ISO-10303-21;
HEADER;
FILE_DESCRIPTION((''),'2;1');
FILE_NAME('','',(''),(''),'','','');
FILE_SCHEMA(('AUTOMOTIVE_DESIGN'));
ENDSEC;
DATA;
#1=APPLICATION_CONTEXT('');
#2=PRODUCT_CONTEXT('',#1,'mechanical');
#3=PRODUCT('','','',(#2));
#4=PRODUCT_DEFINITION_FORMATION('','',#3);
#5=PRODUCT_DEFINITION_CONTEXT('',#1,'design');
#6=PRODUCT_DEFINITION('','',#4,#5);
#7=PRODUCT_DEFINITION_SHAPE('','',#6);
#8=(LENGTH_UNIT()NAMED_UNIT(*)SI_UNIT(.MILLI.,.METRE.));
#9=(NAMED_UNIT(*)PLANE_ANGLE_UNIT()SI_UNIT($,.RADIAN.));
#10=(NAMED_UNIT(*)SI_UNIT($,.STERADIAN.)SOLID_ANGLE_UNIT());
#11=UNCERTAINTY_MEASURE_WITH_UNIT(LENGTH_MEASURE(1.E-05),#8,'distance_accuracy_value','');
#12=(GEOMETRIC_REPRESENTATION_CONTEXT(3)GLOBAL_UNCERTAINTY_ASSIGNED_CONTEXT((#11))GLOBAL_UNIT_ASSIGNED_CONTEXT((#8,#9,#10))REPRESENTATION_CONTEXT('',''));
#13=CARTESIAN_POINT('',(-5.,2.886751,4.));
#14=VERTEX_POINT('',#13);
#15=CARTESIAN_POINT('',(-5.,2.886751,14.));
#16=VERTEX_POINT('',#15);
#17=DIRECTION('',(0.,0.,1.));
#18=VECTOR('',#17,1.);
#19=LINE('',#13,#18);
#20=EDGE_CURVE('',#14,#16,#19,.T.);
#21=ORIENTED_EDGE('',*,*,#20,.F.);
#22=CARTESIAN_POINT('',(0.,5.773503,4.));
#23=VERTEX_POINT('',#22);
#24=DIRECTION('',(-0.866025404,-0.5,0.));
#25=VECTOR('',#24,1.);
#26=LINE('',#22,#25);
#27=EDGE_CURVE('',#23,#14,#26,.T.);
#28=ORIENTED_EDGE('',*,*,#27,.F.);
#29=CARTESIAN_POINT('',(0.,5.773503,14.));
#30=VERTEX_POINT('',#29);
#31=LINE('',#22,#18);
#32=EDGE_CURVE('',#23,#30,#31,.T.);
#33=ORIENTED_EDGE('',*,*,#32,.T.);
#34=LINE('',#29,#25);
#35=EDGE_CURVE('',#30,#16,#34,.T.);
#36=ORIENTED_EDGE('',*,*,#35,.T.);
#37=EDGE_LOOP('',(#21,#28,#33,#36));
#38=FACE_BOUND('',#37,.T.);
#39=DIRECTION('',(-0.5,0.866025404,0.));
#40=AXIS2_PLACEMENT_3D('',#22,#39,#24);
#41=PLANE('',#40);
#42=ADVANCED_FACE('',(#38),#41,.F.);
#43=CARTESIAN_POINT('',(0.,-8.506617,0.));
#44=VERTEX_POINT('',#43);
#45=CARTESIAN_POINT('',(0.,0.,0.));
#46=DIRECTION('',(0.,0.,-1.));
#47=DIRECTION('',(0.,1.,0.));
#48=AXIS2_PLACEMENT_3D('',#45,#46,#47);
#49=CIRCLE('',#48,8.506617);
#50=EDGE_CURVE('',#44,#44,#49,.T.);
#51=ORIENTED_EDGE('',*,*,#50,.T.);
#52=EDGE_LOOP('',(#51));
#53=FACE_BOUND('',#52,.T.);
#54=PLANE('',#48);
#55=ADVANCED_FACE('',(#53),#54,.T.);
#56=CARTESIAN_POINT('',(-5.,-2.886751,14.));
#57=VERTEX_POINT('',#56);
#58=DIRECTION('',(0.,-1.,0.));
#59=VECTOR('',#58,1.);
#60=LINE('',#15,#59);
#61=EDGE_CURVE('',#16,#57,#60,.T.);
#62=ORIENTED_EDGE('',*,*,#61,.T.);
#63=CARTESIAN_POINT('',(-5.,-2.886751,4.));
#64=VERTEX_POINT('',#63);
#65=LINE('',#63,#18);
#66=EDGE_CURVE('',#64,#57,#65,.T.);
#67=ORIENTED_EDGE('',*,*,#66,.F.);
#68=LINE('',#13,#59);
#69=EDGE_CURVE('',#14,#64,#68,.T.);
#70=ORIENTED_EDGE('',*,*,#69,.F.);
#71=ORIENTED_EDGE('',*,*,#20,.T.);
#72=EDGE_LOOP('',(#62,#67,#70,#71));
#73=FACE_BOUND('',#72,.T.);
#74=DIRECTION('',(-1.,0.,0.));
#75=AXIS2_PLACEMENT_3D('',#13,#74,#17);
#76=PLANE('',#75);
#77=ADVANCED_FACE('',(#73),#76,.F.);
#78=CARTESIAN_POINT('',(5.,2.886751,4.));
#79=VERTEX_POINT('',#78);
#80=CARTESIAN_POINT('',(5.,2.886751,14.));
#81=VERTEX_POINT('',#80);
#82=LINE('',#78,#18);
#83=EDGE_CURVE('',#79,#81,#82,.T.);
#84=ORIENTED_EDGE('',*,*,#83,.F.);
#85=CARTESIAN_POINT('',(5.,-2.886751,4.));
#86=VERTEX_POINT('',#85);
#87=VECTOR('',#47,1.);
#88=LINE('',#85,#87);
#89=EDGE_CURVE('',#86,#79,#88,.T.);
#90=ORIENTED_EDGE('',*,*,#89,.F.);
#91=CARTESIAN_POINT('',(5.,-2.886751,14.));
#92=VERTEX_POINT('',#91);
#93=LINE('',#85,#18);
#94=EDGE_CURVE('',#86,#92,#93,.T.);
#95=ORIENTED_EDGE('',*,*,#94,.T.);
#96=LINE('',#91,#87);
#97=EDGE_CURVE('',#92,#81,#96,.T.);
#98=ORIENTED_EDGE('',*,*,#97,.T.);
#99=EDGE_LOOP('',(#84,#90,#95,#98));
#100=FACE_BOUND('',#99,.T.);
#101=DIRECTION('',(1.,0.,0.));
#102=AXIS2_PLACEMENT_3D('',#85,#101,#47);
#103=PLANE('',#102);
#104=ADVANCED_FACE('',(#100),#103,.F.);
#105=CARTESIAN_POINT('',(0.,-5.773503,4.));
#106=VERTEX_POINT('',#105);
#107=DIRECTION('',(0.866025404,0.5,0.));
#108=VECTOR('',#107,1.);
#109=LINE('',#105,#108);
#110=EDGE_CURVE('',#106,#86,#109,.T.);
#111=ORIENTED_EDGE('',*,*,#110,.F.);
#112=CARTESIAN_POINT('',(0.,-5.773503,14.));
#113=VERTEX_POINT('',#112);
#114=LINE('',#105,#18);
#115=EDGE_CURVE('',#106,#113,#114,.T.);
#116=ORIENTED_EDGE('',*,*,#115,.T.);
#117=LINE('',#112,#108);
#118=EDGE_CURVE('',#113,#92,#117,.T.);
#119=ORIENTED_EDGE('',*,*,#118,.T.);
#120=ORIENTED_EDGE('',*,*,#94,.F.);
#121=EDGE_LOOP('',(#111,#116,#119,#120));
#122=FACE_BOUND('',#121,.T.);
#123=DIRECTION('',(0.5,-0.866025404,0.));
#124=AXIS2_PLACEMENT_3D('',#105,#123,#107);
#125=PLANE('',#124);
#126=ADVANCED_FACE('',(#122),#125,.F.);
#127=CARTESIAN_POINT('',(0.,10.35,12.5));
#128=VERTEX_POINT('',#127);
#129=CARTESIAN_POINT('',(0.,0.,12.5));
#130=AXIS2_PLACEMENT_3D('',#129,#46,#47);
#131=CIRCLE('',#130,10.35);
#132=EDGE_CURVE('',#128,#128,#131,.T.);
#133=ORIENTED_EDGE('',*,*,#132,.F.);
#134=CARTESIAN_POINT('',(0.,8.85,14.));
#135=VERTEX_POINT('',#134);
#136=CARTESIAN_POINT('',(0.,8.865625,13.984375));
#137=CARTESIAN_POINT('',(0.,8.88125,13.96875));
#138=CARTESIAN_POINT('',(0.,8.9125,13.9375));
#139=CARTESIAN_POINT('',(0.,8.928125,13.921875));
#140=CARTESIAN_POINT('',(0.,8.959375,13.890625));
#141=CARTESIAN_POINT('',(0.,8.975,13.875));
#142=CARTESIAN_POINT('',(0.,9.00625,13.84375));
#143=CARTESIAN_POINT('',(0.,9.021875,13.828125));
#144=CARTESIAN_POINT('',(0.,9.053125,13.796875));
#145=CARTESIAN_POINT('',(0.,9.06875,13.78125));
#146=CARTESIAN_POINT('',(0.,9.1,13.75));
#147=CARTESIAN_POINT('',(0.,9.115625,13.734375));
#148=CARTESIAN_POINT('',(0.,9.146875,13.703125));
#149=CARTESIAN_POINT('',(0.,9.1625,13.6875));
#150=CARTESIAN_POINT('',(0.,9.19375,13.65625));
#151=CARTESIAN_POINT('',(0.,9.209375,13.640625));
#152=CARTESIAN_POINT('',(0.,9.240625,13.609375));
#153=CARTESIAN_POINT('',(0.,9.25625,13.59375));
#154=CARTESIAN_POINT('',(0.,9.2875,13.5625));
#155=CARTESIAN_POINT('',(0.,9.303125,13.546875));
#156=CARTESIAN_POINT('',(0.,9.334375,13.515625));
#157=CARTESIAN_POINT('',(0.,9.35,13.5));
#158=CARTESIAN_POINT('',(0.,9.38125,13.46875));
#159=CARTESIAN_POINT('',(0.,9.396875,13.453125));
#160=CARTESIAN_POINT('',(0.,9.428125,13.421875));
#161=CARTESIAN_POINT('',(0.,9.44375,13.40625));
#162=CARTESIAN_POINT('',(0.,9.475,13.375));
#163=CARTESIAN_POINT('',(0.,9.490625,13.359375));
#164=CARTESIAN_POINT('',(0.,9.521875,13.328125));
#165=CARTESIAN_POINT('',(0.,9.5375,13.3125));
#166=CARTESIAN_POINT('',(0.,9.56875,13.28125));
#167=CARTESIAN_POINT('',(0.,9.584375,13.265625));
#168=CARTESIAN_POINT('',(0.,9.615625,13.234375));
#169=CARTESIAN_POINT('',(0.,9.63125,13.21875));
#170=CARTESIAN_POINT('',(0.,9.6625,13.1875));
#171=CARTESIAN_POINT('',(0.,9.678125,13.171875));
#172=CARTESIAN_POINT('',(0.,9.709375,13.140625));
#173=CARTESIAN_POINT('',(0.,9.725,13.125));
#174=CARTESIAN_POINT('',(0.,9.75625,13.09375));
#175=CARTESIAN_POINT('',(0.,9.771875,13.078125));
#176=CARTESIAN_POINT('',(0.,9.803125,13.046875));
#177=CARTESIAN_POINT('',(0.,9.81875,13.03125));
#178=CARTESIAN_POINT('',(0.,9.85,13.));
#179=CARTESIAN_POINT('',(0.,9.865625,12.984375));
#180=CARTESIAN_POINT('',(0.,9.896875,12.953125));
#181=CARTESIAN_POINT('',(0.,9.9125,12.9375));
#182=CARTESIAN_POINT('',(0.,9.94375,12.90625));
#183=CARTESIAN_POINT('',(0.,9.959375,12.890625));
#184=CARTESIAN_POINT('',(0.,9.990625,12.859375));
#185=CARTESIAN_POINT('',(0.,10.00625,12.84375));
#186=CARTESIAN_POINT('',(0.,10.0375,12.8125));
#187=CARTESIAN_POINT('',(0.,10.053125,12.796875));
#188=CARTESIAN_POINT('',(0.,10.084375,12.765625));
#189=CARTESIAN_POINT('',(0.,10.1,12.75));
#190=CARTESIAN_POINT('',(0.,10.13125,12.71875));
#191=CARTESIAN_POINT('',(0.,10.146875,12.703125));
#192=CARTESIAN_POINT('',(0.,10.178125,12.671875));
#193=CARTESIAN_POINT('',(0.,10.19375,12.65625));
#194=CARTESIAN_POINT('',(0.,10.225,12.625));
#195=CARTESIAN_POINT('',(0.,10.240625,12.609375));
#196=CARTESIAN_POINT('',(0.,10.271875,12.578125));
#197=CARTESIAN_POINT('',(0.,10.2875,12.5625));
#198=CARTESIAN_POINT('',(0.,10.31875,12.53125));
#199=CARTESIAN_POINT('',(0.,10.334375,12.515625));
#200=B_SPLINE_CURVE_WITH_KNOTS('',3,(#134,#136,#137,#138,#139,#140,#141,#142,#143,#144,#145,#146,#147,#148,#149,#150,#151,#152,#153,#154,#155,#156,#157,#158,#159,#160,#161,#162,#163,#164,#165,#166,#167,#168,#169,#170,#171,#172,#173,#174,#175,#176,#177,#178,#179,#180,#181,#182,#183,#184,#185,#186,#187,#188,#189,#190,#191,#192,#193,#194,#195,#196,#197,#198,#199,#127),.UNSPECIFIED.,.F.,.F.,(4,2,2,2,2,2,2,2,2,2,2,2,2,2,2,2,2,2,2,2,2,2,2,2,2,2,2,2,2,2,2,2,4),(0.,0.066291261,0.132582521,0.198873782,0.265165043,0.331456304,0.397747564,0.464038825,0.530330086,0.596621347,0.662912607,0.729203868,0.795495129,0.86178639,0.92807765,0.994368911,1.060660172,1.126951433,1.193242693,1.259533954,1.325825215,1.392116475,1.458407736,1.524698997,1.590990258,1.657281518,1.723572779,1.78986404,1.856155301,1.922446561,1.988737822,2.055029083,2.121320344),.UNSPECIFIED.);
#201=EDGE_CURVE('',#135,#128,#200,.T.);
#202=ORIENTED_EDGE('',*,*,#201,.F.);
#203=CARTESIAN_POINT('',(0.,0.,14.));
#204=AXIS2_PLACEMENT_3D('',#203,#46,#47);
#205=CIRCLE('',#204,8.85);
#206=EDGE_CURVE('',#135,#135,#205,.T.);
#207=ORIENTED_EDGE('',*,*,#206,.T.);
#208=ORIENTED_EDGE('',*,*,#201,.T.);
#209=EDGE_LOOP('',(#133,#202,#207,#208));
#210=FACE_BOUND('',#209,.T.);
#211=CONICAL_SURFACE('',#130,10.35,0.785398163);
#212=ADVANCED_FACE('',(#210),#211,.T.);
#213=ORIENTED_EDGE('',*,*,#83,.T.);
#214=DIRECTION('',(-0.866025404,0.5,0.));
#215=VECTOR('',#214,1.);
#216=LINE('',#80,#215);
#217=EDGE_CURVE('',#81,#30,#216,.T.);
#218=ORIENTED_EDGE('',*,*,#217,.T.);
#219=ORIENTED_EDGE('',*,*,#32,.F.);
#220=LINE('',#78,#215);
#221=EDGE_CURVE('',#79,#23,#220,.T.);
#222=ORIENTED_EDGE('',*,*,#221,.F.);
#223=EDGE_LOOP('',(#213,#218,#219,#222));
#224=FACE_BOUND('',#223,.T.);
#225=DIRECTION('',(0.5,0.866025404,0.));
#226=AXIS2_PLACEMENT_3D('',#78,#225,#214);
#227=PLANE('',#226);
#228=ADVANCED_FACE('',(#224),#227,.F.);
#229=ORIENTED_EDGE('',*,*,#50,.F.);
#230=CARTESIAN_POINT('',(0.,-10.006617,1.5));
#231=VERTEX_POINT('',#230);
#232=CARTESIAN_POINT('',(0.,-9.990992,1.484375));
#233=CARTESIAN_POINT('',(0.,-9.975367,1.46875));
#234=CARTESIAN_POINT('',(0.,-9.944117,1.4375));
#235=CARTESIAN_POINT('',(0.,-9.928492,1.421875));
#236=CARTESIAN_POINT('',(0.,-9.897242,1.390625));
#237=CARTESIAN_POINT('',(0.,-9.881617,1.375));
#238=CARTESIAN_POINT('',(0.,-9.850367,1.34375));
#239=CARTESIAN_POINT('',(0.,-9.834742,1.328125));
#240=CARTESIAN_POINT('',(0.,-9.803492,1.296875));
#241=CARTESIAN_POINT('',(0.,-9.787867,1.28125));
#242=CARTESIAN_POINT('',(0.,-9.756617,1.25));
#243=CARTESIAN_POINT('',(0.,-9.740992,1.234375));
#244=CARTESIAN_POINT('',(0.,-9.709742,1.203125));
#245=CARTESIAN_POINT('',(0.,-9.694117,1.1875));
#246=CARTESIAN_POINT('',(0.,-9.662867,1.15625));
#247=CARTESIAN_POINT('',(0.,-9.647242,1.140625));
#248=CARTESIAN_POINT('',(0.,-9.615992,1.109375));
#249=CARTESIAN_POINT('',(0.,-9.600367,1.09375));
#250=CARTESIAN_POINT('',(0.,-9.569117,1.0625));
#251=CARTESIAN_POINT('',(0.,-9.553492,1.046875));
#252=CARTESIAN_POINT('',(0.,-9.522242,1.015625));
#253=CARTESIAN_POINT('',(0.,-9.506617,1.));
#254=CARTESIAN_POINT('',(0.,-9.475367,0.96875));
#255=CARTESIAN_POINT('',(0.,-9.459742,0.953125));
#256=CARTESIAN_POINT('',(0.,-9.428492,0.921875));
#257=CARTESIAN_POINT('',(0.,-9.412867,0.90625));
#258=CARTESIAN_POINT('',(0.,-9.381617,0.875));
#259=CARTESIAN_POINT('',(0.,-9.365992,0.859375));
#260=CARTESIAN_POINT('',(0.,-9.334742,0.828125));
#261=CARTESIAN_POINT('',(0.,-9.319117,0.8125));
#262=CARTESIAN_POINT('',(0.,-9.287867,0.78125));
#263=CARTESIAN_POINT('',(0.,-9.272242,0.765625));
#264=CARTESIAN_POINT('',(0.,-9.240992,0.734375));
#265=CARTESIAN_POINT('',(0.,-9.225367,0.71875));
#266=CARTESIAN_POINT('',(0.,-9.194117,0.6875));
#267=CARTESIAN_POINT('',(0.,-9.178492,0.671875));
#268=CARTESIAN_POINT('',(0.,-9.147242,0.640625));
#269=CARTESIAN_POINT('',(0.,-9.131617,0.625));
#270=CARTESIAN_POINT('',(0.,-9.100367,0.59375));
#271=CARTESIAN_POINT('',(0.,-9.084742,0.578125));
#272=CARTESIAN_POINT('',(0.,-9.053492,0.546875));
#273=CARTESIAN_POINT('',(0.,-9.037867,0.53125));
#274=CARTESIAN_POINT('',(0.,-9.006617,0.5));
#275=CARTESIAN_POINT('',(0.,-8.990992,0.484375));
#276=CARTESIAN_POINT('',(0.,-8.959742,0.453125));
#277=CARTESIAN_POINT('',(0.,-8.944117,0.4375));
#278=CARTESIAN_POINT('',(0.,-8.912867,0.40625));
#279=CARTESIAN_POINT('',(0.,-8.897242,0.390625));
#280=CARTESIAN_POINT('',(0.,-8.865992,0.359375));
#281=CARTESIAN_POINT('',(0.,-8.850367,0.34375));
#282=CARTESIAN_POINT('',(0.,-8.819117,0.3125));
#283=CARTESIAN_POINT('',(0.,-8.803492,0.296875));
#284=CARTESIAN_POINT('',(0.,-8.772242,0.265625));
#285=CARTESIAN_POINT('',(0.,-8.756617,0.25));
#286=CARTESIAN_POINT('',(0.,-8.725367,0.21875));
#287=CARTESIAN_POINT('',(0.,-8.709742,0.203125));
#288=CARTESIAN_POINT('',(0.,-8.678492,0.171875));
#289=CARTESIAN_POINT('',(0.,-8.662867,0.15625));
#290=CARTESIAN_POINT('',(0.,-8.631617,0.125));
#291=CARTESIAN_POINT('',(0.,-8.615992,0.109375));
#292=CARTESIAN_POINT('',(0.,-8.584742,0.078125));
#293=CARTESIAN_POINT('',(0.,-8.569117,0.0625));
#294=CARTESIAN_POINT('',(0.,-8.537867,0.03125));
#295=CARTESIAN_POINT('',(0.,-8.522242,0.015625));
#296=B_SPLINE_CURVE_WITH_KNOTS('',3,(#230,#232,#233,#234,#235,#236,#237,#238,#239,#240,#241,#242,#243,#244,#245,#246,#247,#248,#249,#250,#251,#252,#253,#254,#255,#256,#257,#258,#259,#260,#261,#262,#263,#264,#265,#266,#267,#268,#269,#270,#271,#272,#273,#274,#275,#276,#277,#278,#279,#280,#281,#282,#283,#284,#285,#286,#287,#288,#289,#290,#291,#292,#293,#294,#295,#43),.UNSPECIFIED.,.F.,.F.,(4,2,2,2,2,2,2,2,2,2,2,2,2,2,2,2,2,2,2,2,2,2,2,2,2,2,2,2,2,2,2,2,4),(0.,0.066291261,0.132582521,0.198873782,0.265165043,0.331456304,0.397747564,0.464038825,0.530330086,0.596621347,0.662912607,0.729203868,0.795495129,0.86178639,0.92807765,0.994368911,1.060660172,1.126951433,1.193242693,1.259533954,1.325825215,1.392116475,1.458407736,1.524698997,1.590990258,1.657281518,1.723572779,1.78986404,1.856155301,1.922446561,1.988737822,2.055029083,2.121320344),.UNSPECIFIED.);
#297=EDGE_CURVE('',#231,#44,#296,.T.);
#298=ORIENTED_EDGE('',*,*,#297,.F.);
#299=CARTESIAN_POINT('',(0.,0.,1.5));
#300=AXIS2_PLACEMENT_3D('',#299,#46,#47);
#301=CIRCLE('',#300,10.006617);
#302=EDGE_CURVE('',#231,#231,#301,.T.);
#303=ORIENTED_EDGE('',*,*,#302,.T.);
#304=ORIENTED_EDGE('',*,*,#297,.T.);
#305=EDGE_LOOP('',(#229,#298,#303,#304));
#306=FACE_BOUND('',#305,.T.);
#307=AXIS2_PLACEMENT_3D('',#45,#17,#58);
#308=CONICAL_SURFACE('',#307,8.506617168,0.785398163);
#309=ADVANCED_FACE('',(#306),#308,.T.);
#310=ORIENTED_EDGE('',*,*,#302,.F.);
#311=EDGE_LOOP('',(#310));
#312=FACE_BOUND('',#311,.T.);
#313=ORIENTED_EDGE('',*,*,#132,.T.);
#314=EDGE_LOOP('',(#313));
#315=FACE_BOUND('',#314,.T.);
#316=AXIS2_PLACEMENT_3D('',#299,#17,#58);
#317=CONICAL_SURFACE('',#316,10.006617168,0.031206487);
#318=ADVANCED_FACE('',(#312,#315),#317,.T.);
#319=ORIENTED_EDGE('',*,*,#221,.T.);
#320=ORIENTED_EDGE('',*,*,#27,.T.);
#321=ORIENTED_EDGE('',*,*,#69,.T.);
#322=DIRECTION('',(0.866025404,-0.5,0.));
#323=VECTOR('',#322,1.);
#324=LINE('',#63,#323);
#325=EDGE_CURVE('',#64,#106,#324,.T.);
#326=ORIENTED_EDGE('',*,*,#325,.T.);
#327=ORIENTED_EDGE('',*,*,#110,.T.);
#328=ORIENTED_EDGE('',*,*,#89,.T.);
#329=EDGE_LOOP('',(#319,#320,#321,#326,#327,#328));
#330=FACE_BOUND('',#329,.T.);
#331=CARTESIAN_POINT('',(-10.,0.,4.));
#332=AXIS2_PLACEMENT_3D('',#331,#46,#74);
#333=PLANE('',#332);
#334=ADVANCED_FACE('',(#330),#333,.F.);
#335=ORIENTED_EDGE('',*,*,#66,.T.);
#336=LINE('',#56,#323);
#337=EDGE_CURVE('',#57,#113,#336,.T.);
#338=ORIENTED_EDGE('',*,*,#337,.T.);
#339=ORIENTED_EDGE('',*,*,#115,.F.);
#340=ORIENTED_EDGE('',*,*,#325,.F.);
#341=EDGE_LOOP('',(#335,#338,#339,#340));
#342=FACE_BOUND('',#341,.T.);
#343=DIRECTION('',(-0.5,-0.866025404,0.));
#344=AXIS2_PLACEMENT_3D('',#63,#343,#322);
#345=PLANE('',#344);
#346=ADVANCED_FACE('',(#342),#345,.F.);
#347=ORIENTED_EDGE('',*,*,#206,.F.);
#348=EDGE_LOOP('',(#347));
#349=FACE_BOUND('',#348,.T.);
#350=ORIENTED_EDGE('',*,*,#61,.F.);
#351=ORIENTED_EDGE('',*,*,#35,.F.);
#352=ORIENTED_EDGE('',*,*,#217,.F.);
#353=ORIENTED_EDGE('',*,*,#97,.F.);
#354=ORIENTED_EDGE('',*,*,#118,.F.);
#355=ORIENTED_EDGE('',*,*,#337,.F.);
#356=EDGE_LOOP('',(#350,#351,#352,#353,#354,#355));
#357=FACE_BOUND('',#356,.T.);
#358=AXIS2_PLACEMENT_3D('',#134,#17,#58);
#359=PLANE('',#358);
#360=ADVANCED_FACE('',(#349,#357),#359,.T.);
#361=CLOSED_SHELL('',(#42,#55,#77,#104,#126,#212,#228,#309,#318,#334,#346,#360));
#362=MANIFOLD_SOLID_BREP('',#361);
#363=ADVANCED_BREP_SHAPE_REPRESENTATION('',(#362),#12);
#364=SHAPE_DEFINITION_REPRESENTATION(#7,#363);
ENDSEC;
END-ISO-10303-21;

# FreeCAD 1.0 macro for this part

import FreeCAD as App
import Part
import Sketcher
from FreeCAD import Vector
Q = App.Units.Quantity


def add_polygon(sketch, points):
    """Adds a closed chain of lines whose ends are joined by coincident constraints."""
    first, n = sketch.GeometryCount, len(points)
    for a, b in zip(points, points[1:] + points[:1]):
        sketch.addGeometry(Part.LineSegment(App.Vector(*a, 0), App.Vector(*b, 0)), False)
    for i in range(n):
        sketch.addConstraint(Sketcher.Constraint("Coincident", first + i, 2, first + (i + 1) % n, 1))

doc = App.newDocument("Part")
body = doc.addObject("PartDesign::Body", "Body")

sketch1 = body.newObject("Sketcher::SketchObject", "Sketch")
sketch1.AttachmentSupport = (doc.getObject("YZ_Plane"), [""])
sketch1.MapMode = "FlatFace"
add_polygon(sketch1, [(0, 0), (8.5, 0), (10, 1.5), (10.3, 12.5), (8.8, 14), (0, 14)])
sketch1.addConstraint(Sketcher.Constraint("Horizontal", 0))
sketch1.addConstraint(Sketcher.Constraint("Horizontal", 4))
sketch1.addConstraint(Sketcher.Constraint("Vertical", 5))
sketch1.addConstraint(Sketcher.Constraint("Coincident", 5, 2, -1, 1))
sketch1.addConstraint(Sketcher.Constraint("Perpendicular", 1, 3))
sketch1.addConstraint(Sketcher.Constraint("Equal", 1, 3))
sketch1.addConstraint(Sketcher.Constraint("DistanceY", 5, 2, 5, 1, 14.0))
sketch1.addConstraint(Sketcher.Constraint("Angle", 1, Q("45 deg")))
sketch1.addConstraint(Sketcher.Constraint("DistanceY", 1, 2, 2, 2, 11.0))
sketch1.addConstraint(Sketcher.Constraint("DistanceX", 4, 2, 4, 1, 8.85))
sketch1.addConstraint(Sketcher.Constraint("Distance", 2, 11.005358))
revolution = body.newObject("PartDesign::Revolution", "Revolution")
revolution.Profile = sketch1
revolution.ReferenceAxis = (sketch1, ["V_Axis"])
revolution.Angle = 360

sketch2 = body.newObject("Sketcher::SketchObject", "Sketch001")
sketch2.AttachmentSupport = (doc.getObject("XY_Plane"), [""])
sketch2.MapMode = "FlatFace"
sketch2.AttachmentOffset = App.Placement(Vector(0, 0, 14), App.Rotation())
add_polygon(sketch2, [(0, -6), (5, -3), (5, 3), (0, 6), (-5, 3), (-5, -3)])
sketch2.addConstraint(Sketcher.Constraint("Vertical", 1))
sketch2.addConstraint(Sketcher.Constraint("Vertical", 4))
sketch2.addConstraint(Sketcher.Constraint("Symmetric", 0, 2, 3, 2, -1, 1))
sketch2.addConstraint(Sketcher.Constraint("Symmetric", 2, 2, 5, 2, -1, 1))
sketch2.addConstraint(Sketcher.Constraint("PointOnObject", 2, 2, -2))
sketch2.addConstraint(Sketcher.Constraint("Parallel", 2, 5))
sketch2.addConstraint(Sketcher.Constraint("Horizontal", 1, 2, 3, 2))
sketch2.addConstraint(Sketcher.Constraint("Angle", 0, Q("30 deg")))
sketch2.addConstraint(Sketcher.Constraint("DistanceX", -1, 1, 0, 2, 5.0))
sketch2.addConstraint(Sketcher.Constraint("DistanceY", 1, 1, 1, 2, 5.773503))
pocket1 = body.newObject("PartDesign::Pocket", "Pocket")
pocket1.Profile = sketch2
pocket1.Length = 10

doc.recompute()
